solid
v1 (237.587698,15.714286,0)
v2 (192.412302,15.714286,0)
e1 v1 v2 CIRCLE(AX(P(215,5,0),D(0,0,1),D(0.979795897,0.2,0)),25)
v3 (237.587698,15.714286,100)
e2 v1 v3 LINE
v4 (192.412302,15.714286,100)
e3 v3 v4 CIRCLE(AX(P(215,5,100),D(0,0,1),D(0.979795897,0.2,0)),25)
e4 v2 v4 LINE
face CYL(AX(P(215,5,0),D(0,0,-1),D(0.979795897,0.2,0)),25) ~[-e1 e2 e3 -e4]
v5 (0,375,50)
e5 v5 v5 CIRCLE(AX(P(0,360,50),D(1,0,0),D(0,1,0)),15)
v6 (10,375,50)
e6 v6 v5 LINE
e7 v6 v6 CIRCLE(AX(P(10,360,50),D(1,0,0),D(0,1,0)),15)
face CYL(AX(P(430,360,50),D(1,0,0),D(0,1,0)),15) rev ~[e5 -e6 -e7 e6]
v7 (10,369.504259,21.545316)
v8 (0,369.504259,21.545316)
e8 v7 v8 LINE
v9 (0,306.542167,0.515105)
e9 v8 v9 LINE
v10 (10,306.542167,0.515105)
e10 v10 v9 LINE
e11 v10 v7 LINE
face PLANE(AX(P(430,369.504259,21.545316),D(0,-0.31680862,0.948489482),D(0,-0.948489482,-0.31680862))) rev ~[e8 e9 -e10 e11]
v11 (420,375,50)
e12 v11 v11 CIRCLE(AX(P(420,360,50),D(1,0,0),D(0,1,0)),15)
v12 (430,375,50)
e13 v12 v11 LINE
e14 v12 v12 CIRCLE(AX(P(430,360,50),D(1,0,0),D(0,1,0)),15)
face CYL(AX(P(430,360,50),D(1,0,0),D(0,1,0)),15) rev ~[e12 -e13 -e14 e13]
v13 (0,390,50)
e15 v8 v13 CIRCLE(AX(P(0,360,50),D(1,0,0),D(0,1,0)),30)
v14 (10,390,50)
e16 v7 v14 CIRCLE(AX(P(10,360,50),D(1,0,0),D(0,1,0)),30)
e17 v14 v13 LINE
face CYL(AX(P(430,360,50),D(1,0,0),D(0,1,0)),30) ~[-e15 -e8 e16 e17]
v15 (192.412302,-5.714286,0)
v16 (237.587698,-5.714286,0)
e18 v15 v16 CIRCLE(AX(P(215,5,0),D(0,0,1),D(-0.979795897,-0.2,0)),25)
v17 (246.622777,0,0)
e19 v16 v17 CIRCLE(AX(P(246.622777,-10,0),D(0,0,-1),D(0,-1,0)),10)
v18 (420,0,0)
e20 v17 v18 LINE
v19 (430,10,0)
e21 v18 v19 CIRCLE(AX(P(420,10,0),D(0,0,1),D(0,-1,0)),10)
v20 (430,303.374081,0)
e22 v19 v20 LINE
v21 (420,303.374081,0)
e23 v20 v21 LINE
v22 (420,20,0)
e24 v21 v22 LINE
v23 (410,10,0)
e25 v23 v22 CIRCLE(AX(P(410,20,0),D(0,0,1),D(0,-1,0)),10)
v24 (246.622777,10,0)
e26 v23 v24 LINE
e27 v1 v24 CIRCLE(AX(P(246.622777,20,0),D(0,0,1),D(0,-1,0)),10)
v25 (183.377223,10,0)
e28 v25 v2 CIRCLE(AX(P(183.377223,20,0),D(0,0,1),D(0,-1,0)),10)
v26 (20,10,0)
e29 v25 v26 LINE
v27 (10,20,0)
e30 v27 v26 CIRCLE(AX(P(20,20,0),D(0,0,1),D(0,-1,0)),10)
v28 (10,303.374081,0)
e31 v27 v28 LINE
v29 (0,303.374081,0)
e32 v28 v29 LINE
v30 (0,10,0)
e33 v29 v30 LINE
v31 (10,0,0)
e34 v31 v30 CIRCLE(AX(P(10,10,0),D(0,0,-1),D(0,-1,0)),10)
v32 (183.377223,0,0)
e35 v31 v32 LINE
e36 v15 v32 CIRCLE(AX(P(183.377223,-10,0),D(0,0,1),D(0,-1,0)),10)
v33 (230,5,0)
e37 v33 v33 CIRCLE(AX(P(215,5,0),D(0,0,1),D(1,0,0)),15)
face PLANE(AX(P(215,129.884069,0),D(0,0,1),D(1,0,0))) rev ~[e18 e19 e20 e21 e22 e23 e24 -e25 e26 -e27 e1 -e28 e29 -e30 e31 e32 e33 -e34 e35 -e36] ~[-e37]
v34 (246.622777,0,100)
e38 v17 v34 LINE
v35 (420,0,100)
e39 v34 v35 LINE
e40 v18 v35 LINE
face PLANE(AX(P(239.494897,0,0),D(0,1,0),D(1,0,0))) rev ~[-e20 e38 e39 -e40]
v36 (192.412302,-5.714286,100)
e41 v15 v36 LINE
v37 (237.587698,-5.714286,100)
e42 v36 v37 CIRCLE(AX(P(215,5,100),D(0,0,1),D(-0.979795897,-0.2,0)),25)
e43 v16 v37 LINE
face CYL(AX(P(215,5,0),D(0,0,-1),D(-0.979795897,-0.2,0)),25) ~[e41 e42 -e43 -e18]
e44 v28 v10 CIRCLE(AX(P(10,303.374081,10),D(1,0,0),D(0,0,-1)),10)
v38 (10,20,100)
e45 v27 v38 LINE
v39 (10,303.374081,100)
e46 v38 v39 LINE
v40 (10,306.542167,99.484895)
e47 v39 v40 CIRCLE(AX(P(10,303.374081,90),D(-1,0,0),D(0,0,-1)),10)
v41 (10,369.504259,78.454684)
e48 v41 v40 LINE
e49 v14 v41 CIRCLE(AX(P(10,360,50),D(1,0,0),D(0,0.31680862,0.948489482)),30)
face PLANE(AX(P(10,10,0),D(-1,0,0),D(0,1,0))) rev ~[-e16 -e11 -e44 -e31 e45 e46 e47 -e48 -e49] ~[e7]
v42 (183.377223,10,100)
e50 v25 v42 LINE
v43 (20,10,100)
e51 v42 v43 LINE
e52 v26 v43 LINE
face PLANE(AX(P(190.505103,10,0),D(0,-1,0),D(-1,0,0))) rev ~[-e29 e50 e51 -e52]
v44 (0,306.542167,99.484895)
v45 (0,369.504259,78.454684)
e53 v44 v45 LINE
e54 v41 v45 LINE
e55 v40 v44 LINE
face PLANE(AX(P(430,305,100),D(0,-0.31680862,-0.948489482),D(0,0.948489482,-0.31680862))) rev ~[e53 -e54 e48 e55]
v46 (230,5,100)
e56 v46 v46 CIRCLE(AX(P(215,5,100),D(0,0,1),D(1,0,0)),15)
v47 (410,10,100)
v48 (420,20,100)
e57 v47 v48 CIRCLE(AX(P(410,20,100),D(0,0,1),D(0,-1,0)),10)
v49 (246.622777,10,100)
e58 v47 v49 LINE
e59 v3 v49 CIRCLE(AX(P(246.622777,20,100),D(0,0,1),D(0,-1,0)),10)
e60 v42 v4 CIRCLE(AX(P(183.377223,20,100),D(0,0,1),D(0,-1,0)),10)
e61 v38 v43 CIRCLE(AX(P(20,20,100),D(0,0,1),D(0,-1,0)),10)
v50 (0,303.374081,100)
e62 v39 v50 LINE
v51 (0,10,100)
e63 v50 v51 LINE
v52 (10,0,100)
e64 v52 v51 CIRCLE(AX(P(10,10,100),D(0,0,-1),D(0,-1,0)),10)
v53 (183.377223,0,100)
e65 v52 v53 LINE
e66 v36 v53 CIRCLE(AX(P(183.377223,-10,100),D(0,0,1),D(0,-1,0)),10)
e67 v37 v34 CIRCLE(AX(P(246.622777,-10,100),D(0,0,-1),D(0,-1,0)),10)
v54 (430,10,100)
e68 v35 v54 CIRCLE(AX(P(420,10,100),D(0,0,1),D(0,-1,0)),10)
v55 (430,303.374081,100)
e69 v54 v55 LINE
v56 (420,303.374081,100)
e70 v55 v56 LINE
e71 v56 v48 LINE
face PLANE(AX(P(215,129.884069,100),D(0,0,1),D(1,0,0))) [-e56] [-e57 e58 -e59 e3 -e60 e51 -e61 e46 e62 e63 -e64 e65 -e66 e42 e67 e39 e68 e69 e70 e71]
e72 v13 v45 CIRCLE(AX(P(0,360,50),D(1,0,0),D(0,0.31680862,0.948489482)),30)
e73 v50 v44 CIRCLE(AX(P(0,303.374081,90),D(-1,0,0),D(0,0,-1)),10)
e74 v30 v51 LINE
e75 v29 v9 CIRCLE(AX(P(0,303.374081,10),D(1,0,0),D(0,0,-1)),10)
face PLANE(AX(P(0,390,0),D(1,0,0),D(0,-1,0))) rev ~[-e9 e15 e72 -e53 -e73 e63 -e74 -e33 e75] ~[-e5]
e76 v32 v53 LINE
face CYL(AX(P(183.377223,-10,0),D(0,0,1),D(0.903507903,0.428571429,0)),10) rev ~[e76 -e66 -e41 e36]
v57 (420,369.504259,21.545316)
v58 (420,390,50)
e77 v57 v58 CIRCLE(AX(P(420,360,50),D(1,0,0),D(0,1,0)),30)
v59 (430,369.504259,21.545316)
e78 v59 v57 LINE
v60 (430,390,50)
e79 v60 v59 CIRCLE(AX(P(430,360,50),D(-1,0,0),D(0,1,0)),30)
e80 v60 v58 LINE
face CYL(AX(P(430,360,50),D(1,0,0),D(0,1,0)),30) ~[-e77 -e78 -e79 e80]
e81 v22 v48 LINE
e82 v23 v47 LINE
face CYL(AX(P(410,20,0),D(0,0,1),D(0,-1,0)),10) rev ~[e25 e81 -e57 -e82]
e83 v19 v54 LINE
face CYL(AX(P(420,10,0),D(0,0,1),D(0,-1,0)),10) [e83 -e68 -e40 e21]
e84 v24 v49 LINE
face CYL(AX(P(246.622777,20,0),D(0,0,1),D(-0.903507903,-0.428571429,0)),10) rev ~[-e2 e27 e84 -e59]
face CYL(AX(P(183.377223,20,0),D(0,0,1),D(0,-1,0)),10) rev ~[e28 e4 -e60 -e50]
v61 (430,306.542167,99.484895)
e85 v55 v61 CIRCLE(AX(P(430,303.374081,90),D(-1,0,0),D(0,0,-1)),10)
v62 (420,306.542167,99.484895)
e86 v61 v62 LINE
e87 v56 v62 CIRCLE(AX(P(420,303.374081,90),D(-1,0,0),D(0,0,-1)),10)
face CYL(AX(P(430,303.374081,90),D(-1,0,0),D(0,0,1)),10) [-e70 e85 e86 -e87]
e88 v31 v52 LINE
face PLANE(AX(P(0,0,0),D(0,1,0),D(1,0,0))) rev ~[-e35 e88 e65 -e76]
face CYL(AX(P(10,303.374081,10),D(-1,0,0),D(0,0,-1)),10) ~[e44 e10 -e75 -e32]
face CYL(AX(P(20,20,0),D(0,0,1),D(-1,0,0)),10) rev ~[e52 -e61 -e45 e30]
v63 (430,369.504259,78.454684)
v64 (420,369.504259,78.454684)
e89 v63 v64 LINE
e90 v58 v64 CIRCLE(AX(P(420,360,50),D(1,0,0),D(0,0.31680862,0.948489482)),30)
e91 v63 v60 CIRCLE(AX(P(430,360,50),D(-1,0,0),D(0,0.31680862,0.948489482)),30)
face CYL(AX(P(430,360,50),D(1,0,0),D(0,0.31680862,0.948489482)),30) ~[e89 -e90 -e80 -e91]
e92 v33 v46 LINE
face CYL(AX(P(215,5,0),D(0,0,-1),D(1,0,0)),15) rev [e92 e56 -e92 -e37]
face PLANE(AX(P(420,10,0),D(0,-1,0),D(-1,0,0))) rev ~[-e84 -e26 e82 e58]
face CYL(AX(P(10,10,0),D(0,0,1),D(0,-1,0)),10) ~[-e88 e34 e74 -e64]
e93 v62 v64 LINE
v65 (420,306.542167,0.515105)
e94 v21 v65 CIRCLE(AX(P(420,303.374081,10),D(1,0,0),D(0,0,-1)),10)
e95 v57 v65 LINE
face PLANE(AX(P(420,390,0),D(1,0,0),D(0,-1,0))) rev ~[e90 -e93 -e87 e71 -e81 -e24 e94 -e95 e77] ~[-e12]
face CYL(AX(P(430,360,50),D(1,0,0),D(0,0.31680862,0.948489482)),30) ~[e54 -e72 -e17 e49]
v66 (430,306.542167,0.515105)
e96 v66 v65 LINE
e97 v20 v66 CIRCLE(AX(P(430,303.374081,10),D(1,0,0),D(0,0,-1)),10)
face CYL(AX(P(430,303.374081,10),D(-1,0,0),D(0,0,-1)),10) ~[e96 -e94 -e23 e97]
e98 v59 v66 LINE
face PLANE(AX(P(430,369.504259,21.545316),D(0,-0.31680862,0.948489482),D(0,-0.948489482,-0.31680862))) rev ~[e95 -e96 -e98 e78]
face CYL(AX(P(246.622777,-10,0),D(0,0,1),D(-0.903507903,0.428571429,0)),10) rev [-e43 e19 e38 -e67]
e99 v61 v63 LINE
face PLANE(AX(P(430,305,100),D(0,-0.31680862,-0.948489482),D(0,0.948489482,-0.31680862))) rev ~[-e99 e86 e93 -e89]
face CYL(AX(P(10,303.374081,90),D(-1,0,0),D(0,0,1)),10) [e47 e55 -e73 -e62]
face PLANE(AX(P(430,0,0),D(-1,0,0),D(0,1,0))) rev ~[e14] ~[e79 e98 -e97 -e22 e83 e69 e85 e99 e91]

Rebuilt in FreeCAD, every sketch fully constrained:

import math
import FreeCAD as App
import Part
import Sketcher

V = App.Vector
Q = App.Units.Quantity


def edges_at(feature, points):
    """Names of the edges that pass closest to the given points."""
    edges = feature.Shape.Edges
    near = lambda p: min(range(len(edges)), key=lambda i: edges[i].distToShape(Part.Vertex(*p))[0])
    return sorted({f"Edge{near(p) + 1}" for p in points})

doc = App.newDocument("Part")
body = doc.addObject("PartDesign::Body", "Body")

# Sketch on XY plane
sketch1 = body.newObject("Sketcher::SketchObject", "Sketch")
sketch1.AttachmentSupport = (doc.getObject("XY_Plane"), [""])
sketch1.MapMode = "FlatFace"
sketch1.addGeometry([
    Part.ArcOfCircle(Part.Circle(V(215, 5, 0), V(0, 0, 1), 25), math.radians(-168), math.radians(-12)),  # 0
    Part.LineSegment(V(239, 0, 0), V(430, 0, 0)),  # 1
    Part.LineSegment(V(430, 0, 0), V(430, 390, 0)),  # 2
    Part.LineSegment(V(430, 390, 0), V(420, 390, 0)),  # 3
    Part.LineSegment(V(420, 390, 0), V(420, 10, 0)),  # 4
    Part.LineSegment(V(420, 10, 0), V(239, 10, 0)),  # 5
    Part.ArcOfCircle(Part.Circle(V(215, 5, 0), V(0, 0, 1), 25), math.radians(12), math.radians(168)),  # 6
    Part.LineSegment(V(191, 10, 0), V(10, 10, 0)),  # 7
    Part.LineSegment(V(10, 10, 0), V(10, 390, 0)),  # 8
    Part.LineSegment(V(10, 390, 0), V(0, 390, 0)),  # 9
    Part.LineSegment(V(0, 390, 0), V(0, 0, 0)),  # 10
    Part.LineSegment(V(0, 0, 0), V(191, 0, 0)),  # 11
    Part.Circle(V(215, 5, 0), V(0, 0, 1), 15),  # 12
], False)
sketch1.addConstraint([
    Sketcher.Constraint("Coincident", 0, 2, 1, 1),
    Sketcher.Constraint("Coincident", 1, 2, 2, 1),
    Sketcher.Constraint("Coincident", 2, 2, 3, 1),
    Sketcher.Constraint("Coincident", 3, 2, 4, 1),
    Sketcher.Constraint("Coincident", 4, 2, 5, 1),
    Sketcher.Constraint("Coincident", 5, 2, 6, 1),
    Sketcher.Constraint("Coincident", 6, 2, 7, 1),
    Sketcher.Constraint("Coincident", 7, 2, 8, 1),
    Sketcher.Constraint("Coincident", 8, 2, 9, 1),
    Sketcher.Constraint("Coincident", 9, 2, 10, 1),
    Sketcher.Constraint("Coincident", 10, 2, 11, 1),
    Sketcher.Constraint("Coincident", 11, 2, 0, 1),
    Sketcher.Constraint("Horizontal", 1),
    Sketcher.Constraint("Vertical", 2),
    Sketcher.Constraint("Horizontal", 3),
    Sketcher.Constraint("Vertical", 4),
    Sketcher.Constraint("Horizontal", 5),
    Sketcher.Constraint("Horizontal", 7),
    Sketcher.Constraint("Vertical", 8),
    Sketcher.Constraint("Horizontal", 9),
    Sketcher.Constraint("Vertical", 10),
    Sketcher.Constraint("Horizontal", 11),
    Sketcher.Constraint("Coincident", 10, 2, -1, 1),
    Sketcher.Constraint("Coincident", 6, 3, 0, 3),
    Sketcher.Constraint("Coincident", 12, 3, 0, 3),
    Sketcher.Constraint("Equal", 0, 6),
    Sketcher.Constraint("PointOnObject", 0, 2, -1),
    Sketcher.Constraint("Horizontal", 5, 2, 6, 2),
    Sketcher.Constraint("Horizontal", 3, 2, 8, 2),
    Sketcher.Constraint("Vertical", 0, 2, 5, 2),
    Sketcher.Constraint("Equal", 5, 7),
    Sketcher.Constraint("Equal", 3, 9),
    Sketcher.Constraint("Diameter", 12, Q("30 mm")),
    Sketcher.Constraint("Radius", 0, Q("25 mm")),
    Sketcher.Constraint("DistanceX", 3, 2, 3, 1, Q("10 mm")),
    Sketcher.Constraint("DistanceY", 2, 1, 2, 2, Q("390 mm")),
    Sketcher.Constraint("DistanceY", 4, 2, 4, 1, Q("380 mm")),
    Sketcher.Constraint("DistanceX", -1, 1, 0, 3, Q("215 mm")),
])
pad1 = body.newObject("PartDesign::Pad", "Pad")
pad1.Profile = sketch1
pad1.Length = 100

# Sketch on YZ plane
sketch2 = body.newObject("Sketcher::SketchObject", "Sketch001")
sketch2.AttachmentSupport = (doc.getObject("YZ_Plane"), [""])
sketch2.MapMode = "FlatFace"
sketch2.AttachmentOffset = App.Placement(V(0, 0, 430), App.Rotation())
sketch2.addGeometry([
    Part.LineSegment(V(305, 100, 0), V(370, 78, 0)),  # 0
    Part.ArcOfCircle(Part.Circle(V(360, 50, 0), V(0, 0, 1), 30), math.radians(0), math.radians(72)),  # 1
    Part.ArcOfCircle(Part.Circle(V(360, 50, 0), V(0, 0, 1), 30), math.radians(-72), math.radians(0)),  # 2
    Part.LineSegment(V(370, 22, 0), V(305, 0, 0)),  # 3
    Part.LineSegment(V(305, 0, 0), V(305, -21, 0)),  # 4
    Part.LineSegment(V(305, -21, 0), V(556, -21, 0)),  # 5
    Part.LineSegment(V(556, -21, 0), V(556, 121, 0)),  # 6
    Part.LineSegment(V(556, 121, 0), V(305, 121, 0)),  # 7
    Part.LineSegment(V(305, 121, 0), V(305, 100, 0)),  # 8
    Part.Circle(V(360, 50, 0), V(0, 0, 1), 15),  # 9
], False)
sketch2.addConstraint([
    Sketcher.Constraint("Tangent", 0, 2, 1, 2),
    Sketcher.Constraint("Tangent", 1, 1, 2, 2),
    Sketcher.Constraint("Tangent", 2, 1, 3, 1),
    Sketcher.Constraint("Coincident", 3, 2, 4, 1),
    Sketcher.Constraint("Coincident", 4, 2, 5, 1),
    Sketcher.Constraint("Coincident", 5, 2, 6, 1),
    Sketcher.Constraint("Coincident", 6, 2, 7, 1),
    Sketcher.Constraint("Coincident", 7, 2, 8, 1),
    Sketcher.Constraint("Coincident", 8, 2, 0, 1),
    Sketcher.Constraint("Vertical", 4),
    Sketcher.Constraint("Horizontal", 5),
    Sketcher.Constraint("Vertical", 6),
    Sketcher.Constraint("Horizontal", 7),
    Sketcher.Constraint("Vertical", 8),
    Sketcher.Constraint("Coincident", 9, 3, 1, 3),
    Sketcher.Constraint("Equal", 1, 2),
    Sketcher.Constraint("PointOnObject", 3, 2, -1),
    Sketcher.Constraint("Horizontal", 9, 3, 1, 1),
    Sketcher.Constraint("Vertical", 0, 2, 2, 1),
    Sketcher.Constraint("Vertical", 4, 2, 7, 2),
    Sketcher.Constraint("Equal", 4, 8),
    Sketcher.Constraint("Diameter", 9, Q("30 mm")),
    Sketcher.Constraint("Radius", 1, Q("30 mm")),
    Sketcher.Constraint("DistanceX", -1, 1, 1, 3, Q("360 mm")),
    Sketcher.Constraint("DistanceY", -1, 1, 1, 3, Q("50 mm")),
    Sketcher.Constraint("DistanceX", -1, 1, 3, 2, Q("305 mm")),
    Sketcher.Constraint("DistanceX", 5, 1, 5, 2, Q("250.58318 mm")),
    Sketcher.Constraint("DistanceY", 4, 2, 4, 1, Q("20.946967 mm")),
])
pocket1 = body.newObject("PartDesign::Pocket", "Pocket")
pocket1.Profile = sketch2
pocket1.Type = "ThroughAll"
doc.recompute()

fillet = body.newObject("PartDesign::Fillet", "Fillet")
fillet.Base = (pocket1, edges_at(pocket1, [
    (0, 0, 50),
    (10, 10, 50),
    (190.505, 10, 50),
    (239.495, 10, 50),
    (420, 10, 50),
    (430, 0, 50),
    (239.495, 0, 50),
    (190.505, 0, 50),
    (425, 305, 0),
    (425, 305, 100),
    (5, 305, 100),
    (5, 305, 0),
]))
fillet.Radius = 10

doc.recompute()
